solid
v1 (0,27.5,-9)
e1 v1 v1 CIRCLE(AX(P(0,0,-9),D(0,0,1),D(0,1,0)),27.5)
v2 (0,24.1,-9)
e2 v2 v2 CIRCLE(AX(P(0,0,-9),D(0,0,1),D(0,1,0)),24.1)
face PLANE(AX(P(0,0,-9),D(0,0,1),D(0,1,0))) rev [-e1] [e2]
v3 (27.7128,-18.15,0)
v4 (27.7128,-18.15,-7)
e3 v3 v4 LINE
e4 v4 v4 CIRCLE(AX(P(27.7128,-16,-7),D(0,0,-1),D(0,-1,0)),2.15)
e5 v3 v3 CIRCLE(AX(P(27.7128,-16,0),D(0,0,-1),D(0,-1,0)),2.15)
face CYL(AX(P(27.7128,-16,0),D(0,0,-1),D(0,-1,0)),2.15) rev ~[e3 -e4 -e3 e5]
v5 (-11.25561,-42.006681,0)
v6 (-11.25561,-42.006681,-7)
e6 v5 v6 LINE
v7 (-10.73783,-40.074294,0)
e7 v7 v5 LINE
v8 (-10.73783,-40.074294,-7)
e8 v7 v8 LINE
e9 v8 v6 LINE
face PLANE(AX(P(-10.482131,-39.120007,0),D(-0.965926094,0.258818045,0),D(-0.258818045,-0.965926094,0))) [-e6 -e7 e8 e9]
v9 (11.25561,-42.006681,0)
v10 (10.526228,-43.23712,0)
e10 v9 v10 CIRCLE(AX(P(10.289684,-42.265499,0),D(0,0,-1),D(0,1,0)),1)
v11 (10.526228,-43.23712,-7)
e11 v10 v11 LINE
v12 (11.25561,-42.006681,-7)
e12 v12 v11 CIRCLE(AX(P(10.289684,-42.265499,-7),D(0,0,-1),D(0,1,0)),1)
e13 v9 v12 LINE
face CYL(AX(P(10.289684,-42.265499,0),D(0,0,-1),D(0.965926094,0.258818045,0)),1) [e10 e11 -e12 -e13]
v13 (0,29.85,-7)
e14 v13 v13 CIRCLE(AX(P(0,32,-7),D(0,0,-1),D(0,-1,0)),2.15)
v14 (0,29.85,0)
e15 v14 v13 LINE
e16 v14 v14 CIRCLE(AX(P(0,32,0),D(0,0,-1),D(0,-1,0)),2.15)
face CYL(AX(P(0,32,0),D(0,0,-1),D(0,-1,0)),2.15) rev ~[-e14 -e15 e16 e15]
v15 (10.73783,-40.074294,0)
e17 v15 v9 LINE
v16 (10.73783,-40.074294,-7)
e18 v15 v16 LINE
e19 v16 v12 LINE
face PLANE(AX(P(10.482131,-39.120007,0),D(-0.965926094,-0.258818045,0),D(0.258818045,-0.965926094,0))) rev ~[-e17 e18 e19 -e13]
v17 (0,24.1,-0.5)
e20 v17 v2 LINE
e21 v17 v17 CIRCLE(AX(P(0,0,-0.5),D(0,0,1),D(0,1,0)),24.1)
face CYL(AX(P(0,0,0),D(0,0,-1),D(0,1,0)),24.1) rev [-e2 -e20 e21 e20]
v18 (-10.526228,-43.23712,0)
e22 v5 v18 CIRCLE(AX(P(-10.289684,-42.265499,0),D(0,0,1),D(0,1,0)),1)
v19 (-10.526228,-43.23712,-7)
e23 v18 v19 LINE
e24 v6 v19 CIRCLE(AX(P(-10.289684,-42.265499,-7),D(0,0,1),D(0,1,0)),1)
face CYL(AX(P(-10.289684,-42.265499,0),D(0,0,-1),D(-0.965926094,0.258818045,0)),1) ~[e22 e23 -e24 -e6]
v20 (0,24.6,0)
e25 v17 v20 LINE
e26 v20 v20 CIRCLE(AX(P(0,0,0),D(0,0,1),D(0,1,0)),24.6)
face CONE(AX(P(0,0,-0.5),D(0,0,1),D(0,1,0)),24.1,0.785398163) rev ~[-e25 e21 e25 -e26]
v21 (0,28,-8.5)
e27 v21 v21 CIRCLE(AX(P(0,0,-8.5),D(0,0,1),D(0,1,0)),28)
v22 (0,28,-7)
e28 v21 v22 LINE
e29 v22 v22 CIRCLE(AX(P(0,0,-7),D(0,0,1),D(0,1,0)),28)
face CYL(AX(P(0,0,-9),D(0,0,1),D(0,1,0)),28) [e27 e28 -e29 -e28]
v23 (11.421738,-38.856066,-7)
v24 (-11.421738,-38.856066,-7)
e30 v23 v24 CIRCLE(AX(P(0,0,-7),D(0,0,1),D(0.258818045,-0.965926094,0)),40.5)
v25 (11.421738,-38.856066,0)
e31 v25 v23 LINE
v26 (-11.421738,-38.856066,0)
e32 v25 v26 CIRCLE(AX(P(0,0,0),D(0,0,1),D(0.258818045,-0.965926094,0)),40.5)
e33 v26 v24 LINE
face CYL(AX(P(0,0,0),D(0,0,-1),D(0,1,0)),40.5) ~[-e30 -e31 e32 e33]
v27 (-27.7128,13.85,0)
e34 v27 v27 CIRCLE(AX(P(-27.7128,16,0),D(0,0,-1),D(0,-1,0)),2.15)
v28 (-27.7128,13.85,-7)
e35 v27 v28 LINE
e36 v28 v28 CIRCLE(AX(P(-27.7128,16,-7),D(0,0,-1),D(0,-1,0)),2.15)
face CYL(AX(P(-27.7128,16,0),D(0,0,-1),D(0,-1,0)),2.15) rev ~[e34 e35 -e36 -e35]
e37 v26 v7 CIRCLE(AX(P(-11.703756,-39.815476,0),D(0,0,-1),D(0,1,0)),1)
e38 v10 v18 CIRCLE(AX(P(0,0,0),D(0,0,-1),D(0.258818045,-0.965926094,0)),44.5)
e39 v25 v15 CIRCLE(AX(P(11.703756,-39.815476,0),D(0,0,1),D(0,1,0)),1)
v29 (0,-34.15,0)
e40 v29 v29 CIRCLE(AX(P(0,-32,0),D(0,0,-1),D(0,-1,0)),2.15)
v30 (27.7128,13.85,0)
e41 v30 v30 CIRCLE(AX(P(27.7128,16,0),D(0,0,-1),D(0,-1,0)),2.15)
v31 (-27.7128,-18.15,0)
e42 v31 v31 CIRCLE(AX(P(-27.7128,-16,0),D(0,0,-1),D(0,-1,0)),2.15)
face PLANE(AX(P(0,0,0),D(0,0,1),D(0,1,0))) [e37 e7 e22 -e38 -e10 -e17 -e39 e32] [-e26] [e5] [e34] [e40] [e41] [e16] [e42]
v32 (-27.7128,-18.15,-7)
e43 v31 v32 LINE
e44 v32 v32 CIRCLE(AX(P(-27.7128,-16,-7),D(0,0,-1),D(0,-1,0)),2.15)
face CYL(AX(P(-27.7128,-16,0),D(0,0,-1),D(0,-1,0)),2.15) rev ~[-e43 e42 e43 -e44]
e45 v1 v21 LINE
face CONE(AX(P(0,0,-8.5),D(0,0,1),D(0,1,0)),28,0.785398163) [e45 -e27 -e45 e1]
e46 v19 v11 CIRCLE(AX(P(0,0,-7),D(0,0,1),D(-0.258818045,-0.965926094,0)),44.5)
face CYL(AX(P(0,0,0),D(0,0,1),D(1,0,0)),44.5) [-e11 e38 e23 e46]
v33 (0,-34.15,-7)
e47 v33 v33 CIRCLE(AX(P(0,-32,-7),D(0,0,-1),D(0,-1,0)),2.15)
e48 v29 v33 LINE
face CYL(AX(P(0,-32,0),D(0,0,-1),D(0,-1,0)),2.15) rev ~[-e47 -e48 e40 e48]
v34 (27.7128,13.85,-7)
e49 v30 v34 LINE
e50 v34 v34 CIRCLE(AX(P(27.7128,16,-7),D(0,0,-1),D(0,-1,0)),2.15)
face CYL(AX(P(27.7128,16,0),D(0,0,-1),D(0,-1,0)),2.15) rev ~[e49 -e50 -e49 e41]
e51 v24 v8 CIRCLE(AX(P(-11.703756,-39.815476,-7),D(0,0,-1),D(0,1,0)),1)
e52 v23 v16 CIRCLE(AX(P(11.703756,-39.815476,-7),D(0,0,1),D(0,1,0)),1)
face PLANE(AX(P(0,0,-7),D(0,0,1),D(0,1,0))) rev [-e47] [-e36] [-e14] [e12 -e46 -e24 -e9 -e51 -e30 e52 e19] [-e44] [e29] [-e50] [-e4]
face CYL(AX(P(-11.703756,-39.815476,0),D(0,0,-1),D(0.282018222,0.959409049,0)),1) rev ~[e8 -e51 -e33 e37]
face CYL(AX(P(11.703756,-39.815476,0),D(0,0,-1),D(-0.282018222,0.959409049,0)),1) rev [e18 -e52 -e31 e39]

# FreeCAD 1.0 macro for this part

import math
import FreeCAD as App
import Part
import Sketcher
from FreeCAD import Vector
Q = App.Units.Quantity


def edges_at(feature, points):
    """Names of the edges that pass closest to the given points."""
    edges = feature.Shape.Edges
    near = lambda p: min(range(len(edges)), key=lambda i: edges[i].distToShape(Part.Vertex(*p))[0])
    return sorted({f"Edge{near(p) + 1}" for p in points})

doc = App.newDocument("Part")
body = doc.addObject("PartDesign::Body", "Body")

sketch1 = body.newObject("Sketcher::SketchObject", "Sketch")
sketch1.AttachmentSupport = (doc.getObject("YZ_Plane"), [""])
sketch1.MapMode = "FlatFace"
sketch1.addGeometry([
    Part.LineSegment(Vector(40.5, 0, 0), Vector(24.1, 0, 0)),
    Part.LineSegment(Vector(24.1, 0, 0), Vector(24.1, -9, 0)),
    Part.LineSegment(Vector(24.1, -9, 0), Vector(28, -9, 0)),
    Part.LineSegment(Vector(28, -9, 0), Vector(28, -7, 0)),
    Part.LineSegment(Vector(28, -7, 0), Vector(40.5, -7, 0)),
    Part.LineSegment(Vector(40.5, -7, 0), Vector(40.5, 0, 0)),
], False)
sketch1.addConstraint([
    Sketcher.Constraint("Coincident", 0, 2, 1, 1),
    Sketcher.Constraint("Coincident", 1, 2, 2, 1),
    Sketcher.Constraint("Coincident", 2, 2, 3, 1),
    Sketcher.Constraint("Coincident", 3, 2, 4, 1),
    Sketcher.Constraint("Coincident", 4, 2, 5, 1),
    Sketcher.Constraint("Coincident", 5, 2, 0, 1),
    Sketcher.Constraint("Horizontal", 0),
    Sketcher.Constraint("Vertical", 1),
    Sketcher.Constraint("Horizontal", 2),
    Sketcher.Constraint("Vertical", 3),
    Sketcher.Constraint("Horizontal", 4),
    Sketcher.Constraint("Vertical", 5),
    Sketcher.Constraint("PointOnObject", 0, 2, -1),
    Sketcher.Constraint("DistanceY", 3, 1, 3, 2, 2.0),
    Sketcher.Constraint("DistanceY", 5, 1, 5, 2, 7.0),
    Sketcher.Constraint("DistanceX", -1, 1, 2, 2, 28.0),
    Sketcher.Constraint("DistanceX", -1, 1, 0, 2, 24.1),
    Sketcher.Constraint("DistanceX", -1, 1, 4, 2, 40.5),
])
revolution = body.newObject("PartDesign::Revolution", "Revolution")
revolution.Profile = sketch1
revolution.ReferenceAxis = (sketch1, ["V_Axis"])
revolution.Angle = 360

sketch2 = body.newObject("Sketcher::SketchObject", "Sketch001")
sketch2.AttachmentSupport = (doc.getObject("XY_Plane"), [""])
sketch2.MapMode = "FlatFace"
sketch2.addGeometry([
    Part.Circle(Vector(0, 32, 0), Vector(0, 0, 1), 2.1),
    Part.Circle(Vector(-27.7, 16, 0), Vector(0, 0, 1), 2.1),
    Part.Circle(Vector(-27.7, -16, 0), Vector(0, 0, 1), 2.1),
    Part.Circle(Vector(0, -32, 0), Vector(0, 0, 1), 2.1),
    Part.Circle(Vector(27.7, -16, 0), Vector(0, 0, 1), 2.1),
    Part.Circle(Vector(27.7, 16, 0), Vector(0, 0, 1), 2.1),
], False)
sketch2.addConstraint([
    Sketcher.Constraint("Equal", 0, 1),
    Sketcher.Constraint("Equal", 1, 2),
    Sketcher.Constraint("Equal", 2, 3),
    Sketcher.Constraint("Equal", 3, 4),
    Sketcher.Constraint("Equal", 4, 5),
    Sketcher.Constraint("Symmetric", 0, 3, 3, 3, -1, 1),
    Sketcher.Constraint("Symmetric", 1, 3, 4, 3, -1, 1),
    Sketcher.Constraint("Symmetric", 2, 3, 5, 3, -1, 1),
    Sketcher.Constraint("Symmetric", 2, 3, 4, 3, -2),
    Sketcher.Constraint("PointOnObject", 0, 3, -2),
    Sketcher.Constraint("Diameter", 0, 4.3),
    Sketcher.Constraint("DistanceY", -1, 1, 0, 3, 32.0),
    Sketcher.Constraint("DistanceY", -1, 1, 1, 3, 16.0),
    Sketcher.Constraint("DistanceX", 1, 3, -1, 1, 27.7128),
])
doc.recompute()
hole = body.newObject("PartDesign::Hole", "Hole")
hole.Profile = sketch2
hole.ThreadType = "None"
hole.Diameter = 4.3
hole.DepthType = "ThroughAll"
doc.recompute()

chamfer = body.newObject("PartDesign::Chamfer", "Chamfer")
chamfer.Base = (hole, edges_at(hole, [(0, -28, -9)]))
chamfer.Size = 0.5
doc.recompute()

chamfer2 = body.newObject("PartDesign::Chamfer", "Chamfer001")
chamfer2.Base = (chamfer, edges_at(chamfer, [(0, -24.1, 0)]))
chamfer2.Size = 0.5

sketch3 = body.newObject("Sketcher::SketchObject", "Sketch002")
sketch3.AttachmentSupport = (doc.getObject("XY_Plane"), [""])
sketch3.MapMode = "FlatFace"
sketch3.addGeometry([
    Part.LineSegment(Vector(11.5, -43, 0), Vector(10.5, -39.1, 0)),
    Part.ArcOfCircle(Part.Circle(Vector(0, 0, 0), Vector(0, 0, 1), 40.5), math.radians(-105), math.radians(-75)),
    Part.LineSegment(Vector(-10.5, -39.1, 0), Vector(-11.5, -43, 0)),
    Part.ArcOfCircle(Part.Circle(Vector(0, 0, 0), Vector(0, 0, 1), 44.5), math.radians(-105), math.radians(-75)),
], False)
sketch3.addConstraint([
    Sketcher.Constraint("Coincident", 0, 2, 1, 2),
    Sketcher.Constraint("Coincident", 1, 1, 2, 1),
    Sketcher.Constraint("Coincident", 2, 2, 3, 1),
    Sketcher.Constraint("Coincident", 3, 2, 0, 1),
    Sketcher.Constraint("Coincident", 1, 3, -1, 1),
    Sketcher.Constraint("Coincident", 3, 3, -1, 1),
    Sketcher.Constraint("Horizontal", 0, 2, 1, 1),
    Sketcher.Constraint("Horizontal", 2, 2, 3, 2),
    Sketcher.Constraint("Distance", 0, 4.0),
    Sketcher.Constraint("Radius", 1, 40.5),
    Sketcher.Constraint("Angle", 0, Q("105 deg")),
    Sketcher.Constraint("DistanceY", 0, 2, -1, 1, 39.12),
])
pad1 = body.newObject("PartDesign::Pad", "Pad")
pad1.Profile = sketch3
pad1.Length = 7
pad1.Reversed = True
doc.recompute()

fillet = body.newObject("PartDesign::Fillet", "Fillet")
fillet.Base = (pad1, edges_at(pad1, [
    (10.482, -39.12, -3.5),
    (11.517, -42.984, -3.5),
    (-10.482, -39.12, -3.5),
    (-11.517, -42.984, -3.5),
]))
fillet.Radius = 1

doc.recompute()
